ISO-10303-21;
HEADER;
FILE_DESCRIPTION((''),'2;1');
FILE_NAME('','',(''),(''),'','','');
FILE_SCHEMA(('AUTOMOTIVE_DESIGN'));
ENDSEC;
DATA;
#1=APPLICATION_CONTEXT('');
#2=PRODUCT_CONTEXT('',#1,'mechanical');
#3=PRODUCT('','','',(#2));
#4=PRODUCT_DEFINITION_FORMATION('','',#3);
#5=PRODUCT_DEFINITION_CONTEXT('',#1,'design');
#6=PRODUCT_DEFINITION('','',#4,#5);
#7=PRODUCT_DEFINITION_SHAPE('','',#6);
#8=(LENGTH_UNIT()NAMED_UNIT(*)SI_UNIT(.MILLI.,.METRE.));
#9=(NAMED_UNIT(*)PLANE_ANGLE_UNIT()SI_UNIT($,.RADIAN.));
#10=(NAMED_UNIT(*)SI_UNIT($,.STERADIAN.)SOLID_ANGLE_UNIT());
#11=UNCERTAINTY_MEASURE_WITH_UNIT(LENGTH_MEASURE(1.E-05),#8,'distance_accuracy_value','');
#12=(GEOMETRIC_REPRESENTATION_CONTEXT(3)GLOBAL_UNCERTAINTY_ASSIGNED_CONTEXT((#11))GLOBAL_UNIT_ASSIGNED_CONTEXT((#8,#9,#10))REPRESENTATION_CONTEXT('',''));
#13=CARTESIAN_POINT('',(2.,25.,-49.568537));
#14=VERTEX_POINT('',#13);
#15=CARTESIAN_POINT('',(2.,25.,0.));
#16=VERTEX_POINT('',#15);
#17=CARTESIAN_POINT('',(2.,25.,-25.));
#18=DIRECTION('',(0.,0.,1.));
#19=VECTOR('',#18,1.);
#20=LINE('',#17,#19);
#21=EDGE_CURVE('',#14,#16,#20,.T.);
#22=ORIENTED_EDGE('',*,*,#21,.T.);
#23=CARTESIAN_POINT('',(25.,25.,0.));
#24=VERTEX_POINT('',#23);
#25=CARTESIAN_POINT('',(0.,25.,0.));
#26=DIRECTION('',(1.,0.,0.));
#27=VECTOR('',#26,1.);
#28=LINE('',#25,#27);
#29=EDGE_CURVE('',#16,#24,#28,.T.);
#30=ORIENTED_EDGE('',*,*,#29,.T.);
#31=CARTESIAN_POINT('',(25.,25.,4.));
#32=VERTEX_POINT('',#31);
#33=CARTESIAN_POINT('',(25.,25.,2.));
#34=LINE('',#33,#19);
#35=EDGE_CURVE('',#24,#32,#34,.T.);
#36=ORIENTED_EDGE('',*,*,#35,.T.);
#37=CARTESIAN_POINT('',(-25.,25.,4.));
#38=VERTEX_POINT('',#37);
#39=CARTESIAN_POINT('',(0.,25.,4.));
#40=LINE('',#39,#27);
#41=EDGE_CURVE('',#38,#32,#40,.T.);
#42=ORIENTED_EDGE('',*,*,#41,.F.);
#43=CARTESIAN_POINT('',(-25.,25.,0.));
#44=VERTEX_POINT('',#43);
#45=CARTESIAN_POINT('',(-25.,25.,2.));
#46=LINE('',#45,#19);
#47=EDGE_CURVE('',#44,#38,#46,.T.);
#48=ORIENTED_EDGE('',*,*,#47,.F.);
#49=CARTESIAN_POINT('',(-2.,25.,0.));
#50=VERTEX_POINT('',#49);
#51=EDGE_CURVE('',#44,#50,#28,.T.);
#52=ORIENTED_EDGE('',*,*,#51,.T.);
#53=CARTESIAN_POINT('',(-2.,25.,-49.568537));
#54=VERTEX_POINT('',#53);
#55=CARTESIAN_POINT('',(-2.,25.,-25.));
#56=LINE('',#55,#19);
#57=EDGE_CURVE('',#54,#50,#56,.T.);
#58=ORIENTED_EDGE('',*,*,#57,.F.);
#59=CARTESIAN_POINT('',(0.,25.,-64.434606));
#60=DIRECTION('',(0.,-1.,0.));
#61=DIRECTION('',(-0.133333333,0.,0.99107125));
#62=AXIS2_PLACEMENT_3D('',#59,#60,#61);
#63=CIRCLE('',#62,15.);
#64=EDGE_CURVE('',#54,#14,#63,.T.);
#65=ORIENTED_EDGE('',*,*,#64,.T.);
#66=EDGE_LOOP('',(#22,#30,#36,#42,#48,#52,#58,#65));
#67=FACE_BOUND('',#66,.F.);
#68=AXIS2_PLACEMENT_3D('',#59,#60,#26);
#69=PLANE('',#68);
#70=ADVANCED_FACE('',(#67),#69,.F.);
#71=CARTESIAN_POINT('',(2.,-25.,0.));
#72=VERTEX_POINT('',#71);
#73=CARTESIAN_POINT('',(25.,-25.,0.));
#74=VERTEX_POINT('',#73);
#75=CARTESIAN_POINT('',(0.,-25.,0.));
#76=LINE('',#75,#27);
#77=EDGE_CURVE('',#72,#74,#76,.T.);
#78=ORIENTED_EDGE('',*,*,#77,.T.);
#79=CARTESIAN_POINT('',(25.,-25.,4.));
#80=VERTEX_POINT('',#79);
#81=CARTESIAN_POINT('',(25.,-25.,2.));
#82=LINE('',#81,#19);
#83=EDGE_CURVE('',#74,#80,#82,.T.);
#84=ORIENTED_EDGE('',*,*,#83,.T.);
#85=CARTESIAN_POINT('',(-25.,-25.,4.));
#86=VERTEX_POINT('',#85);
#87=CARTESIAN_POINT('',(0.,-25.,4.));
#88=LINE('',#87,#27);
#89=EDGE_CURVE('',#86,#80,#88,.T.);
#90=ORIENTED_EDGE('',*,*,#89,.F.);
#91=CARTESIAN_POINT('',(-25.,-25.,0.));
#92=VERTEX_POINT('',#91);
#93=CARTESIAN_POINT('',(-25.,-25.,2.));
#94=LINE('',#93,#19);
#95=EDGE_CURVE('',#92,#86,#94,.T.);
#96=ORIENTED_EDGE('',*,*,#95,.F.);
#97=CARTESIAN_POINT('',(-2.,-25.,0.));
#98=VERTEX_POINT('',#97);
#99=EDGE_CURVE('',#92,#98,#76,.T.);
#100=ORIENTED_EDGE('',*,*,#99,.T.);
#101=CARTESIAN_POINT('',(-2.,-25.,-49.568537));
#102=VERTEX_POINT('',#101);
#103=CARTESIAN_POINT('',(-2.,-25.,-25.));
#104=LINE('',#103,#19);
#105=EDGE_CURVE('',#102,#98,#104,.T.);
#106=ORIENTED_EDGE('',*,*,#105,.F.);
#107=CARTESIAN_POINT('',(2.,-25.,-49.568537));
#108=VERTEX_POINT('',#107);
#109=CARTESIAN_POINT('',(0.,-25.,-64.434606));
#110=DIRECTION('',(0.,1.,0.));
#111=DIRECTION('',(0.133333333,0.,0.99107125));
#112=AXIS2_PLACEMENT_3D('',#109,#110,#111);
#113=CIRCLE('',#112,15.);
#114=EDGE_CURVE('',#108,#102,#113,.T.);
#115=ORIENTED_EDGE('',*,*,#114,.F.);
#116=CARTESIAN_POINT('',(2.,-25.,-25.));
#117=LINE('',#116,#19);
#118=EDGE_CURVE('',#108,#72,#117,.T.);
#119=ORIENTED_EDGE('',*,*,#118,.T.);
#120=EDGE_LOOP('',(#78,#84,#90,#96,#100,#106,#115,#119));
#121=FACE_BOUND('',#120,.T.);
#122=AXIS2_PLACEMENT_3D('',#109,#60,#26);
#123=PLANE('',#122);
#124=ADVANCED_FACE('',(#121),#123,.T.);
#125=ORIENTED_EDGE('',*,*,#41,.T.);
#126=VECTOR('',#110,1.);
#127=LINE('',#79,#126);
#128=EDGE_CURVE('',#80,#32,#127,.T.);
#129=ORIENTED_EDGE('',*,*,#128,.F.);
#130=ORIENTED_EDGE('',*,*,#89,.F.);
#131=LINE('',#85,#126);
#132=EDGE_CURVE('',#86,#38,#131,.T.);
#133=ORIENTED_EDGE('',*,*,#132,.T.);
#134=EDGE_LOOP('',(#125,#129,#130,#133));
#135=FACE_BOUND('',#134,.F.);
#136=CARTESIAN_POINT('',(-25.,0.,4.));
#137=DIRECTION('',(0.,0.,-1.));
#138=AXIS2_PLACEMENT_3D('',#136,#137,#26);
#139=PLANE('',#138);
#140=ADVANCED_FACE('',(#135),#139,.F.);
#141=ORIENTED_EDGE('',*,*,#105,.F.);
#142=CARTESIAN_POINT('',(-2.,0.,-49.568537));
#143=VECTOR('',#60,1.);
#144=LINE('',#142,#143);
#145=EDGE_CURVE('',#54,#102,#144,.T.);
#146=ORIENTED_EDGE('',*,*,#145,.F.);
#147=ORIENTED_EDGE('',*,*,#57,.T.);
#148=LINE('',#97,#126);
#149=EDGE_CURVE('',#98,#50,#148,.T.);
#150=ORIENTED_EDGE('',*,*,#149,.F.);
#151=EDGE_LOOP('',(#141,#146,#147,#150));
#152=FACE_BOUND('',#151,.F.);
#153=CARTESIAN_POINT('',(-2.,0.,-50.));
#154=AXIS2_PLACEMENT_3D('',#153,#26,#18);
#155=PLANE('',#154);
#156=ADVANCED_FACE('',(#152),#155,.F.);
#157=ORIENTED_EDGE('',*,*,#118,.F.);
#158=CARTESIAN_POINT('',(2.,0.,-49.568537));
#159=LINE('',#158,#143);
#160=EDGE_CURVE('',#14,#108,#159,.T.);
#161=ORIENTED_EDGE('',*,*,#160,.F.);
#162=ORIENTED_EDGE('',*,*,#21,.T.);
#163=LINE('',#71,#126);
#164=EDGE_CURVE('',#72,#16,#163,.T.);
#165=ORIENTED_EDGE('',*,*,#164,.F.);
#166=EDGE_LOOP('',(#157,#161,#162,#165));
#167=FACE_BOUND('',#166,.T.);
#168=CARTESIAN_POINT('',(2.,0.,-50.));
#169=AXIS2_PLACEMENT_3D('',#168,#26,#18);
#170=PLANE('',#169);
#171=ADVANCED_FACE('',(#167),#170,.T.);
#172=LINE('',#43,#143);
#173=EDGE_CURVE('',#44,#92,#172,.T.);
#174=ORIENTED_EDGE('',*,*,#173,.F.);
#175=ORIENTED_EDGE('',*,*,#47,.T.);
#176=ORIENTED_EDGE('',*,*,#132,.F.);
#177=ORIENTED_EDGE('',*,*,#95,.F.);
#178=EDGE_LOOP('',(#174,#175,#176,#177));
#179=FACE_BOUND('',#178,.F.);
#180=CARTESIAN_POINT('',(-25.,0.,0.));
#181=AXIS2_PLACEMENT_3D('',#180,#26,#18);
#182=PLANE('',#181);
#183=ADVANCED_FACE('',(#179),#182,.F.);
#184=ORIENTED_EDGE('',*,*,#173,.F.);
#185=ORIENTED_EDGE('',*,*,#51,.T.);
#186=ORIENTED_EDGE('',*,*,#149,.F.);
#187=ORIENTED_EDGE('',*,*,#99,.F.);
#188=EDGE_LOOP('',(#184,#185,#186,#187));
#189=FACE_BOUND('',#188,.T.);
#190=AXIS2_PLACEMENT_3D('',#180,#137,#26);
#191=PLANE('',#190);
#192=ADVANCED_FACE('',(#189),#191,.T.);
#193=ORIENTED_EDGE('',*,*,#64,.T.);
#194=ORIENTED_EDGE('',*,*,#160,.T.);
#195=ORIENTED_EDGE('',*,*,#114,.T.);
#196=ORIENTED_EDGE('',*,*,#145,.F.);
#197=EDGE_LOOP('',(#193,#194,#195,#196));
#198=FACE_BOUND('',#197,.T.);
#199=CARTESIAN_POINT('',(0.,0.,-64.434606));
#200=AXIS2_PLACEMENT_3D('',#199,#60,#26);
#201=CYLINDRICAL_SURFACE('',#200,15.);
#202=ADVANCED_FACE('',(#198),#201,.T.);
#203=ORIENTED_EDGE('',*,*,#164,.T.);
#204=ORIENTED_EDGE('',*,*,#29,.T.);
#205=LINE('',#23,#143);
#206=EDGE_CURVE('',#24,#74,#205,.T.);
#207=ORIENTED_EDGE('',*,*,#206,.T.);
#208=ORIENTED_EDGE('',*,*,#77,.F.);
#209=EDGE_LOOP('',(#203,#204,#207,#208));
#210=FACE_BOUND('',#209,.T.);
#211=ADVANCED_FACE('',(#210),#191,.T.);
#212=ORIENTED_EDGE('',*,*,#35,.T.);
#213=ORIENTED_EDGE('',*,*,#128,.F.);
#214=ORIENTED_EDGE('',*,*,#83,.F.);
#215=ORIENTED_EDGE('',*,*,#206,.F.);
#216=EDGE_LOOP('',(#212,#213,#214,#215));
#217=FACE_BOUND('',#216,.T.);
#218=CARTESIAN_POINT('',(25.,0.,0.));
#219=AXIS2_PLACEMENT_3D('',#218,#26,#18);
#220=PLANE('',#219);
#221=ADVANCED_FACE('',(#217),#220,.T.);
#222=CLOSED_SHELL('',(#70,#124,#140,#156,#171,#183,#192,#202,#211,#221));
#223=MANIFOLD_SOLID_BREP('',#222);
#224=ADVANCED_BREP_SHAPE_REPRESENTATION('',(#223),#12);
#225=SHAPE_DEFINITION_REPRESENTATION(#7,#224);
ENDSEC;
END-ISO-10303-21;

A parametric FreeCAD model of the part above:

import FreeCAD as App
import Part
import Sketcher

V = App.Vector


def add_polygon(sketch, points):
    """Adds a closed chain of lines whose ends are joined by coincident constraints."""
    first, n = sketch.GeometryCount, len(points)
    for a, b in zip(points, points[1:] + points[:1]):
        sketch.addGeometry(Part.LineSegment(App.Vector(*a, 0), App.Vector(*b, 0)), False)
    for i in range(n):
        sketch.addConstraint(Sketcher.Constraint("Coincident", first + i, 2, first + (i + 1) % n, 1))

doc = App.newDocument("Part")
body = doc.addObject("PartDesign::Body", "Body")

sketch1 = body.newObject("Sketcher::SketchObject", "Sketch")
sketch1.AttachmentSupport = (doc.getObject("XZ_Plane"), [""])
sketch1.MapMode = "FlatFace"
add_polygon(sketch1, [(-2, 0), (-2, -50), (2, -50), (2, 0)])
sketch1.addConstraint([
    Sketcher.Constraint("Vertical", 0),
    Sketcher.Constraint("Horizontal", 1),
    Sketcher.Constraint("Vertical", 2),
    Sketcher.Constraint("Horizontal", 3),
    Sketcher.Constraint("Symmetric", 2, 2, 3, 2, -1, 1),
    Sketcher.Constraint("DistanceX", 1, 1, 1, 2, 4.0),
    Sketcher.Constraint("DistanceY", 0, 2, 0, 1, 50.0),
])
pad1 = body.newObject("PartDesign::Pad", "Pad")
pad1.Profile = sketch1
pad1.Length = 50
pad1.Midplane = True

sketch2 = body.newObject("Sketcher::SketchObject", "Sketch001")
sketch2.AttachmentSupport = (doc.getObject("XZ_Plane"), [""])
sketch2.MapMode = "FlatFace"
add_polygon(sketch2, [(-25, 4), (-25, 0), (25, 0), (25, 4)])
sketch2.addConstraint([
    Sketcher.Constraint("Vertical", 0),
    Sketcher.Constraint("Horizontal", 1),
    Sketcher.Constraint("Vertical", 2),
    Sketcher.Constraint("Horizontal", 3),
    Sketcher.Constraint("Symmetric", 0, 2, 1, 2, -1, 1),
    Sketcher.Constraint("DistanceX", 1, 1, 1, 2, 50.0),
    Sketcher.Constraint("DistanceY", 0, 2, 0, 1, 4.0),
])
pad2 = body.newObject("PartDesign::Pad", "Pad001")
pad2.Profile = sketch2
pad2.Length = 50
pad2.Midplane = True

sketch3 = body.newObject("Sketcher::SketchObject", "Sketch002")
sketch3.AttachmentSupport = (doc.getObject("XZ_Plane"), [""])
sketch3.MapMode = "FlatFace"
sketch3.addGeometry(Part.Circle(V(0, -64.434606, 0), V(0, 0, 1), 15), False)
sketch3.addConstraint([
    Sketcher.Constraint("PointOnObject", 0, 3, -2),
    Sketcher.Constraint("Diameter", 0, 30.0),
    Sketcher.Constraint("DistanceY", 0, 3, -1, 1, 64.434606),
])
pad3 = body.newObject("PartDesign::Pad", "Pad002")
pad3.Profile = sketch3
pad3.Length = 50
pad3.Midplane = True

doc.recompute()
